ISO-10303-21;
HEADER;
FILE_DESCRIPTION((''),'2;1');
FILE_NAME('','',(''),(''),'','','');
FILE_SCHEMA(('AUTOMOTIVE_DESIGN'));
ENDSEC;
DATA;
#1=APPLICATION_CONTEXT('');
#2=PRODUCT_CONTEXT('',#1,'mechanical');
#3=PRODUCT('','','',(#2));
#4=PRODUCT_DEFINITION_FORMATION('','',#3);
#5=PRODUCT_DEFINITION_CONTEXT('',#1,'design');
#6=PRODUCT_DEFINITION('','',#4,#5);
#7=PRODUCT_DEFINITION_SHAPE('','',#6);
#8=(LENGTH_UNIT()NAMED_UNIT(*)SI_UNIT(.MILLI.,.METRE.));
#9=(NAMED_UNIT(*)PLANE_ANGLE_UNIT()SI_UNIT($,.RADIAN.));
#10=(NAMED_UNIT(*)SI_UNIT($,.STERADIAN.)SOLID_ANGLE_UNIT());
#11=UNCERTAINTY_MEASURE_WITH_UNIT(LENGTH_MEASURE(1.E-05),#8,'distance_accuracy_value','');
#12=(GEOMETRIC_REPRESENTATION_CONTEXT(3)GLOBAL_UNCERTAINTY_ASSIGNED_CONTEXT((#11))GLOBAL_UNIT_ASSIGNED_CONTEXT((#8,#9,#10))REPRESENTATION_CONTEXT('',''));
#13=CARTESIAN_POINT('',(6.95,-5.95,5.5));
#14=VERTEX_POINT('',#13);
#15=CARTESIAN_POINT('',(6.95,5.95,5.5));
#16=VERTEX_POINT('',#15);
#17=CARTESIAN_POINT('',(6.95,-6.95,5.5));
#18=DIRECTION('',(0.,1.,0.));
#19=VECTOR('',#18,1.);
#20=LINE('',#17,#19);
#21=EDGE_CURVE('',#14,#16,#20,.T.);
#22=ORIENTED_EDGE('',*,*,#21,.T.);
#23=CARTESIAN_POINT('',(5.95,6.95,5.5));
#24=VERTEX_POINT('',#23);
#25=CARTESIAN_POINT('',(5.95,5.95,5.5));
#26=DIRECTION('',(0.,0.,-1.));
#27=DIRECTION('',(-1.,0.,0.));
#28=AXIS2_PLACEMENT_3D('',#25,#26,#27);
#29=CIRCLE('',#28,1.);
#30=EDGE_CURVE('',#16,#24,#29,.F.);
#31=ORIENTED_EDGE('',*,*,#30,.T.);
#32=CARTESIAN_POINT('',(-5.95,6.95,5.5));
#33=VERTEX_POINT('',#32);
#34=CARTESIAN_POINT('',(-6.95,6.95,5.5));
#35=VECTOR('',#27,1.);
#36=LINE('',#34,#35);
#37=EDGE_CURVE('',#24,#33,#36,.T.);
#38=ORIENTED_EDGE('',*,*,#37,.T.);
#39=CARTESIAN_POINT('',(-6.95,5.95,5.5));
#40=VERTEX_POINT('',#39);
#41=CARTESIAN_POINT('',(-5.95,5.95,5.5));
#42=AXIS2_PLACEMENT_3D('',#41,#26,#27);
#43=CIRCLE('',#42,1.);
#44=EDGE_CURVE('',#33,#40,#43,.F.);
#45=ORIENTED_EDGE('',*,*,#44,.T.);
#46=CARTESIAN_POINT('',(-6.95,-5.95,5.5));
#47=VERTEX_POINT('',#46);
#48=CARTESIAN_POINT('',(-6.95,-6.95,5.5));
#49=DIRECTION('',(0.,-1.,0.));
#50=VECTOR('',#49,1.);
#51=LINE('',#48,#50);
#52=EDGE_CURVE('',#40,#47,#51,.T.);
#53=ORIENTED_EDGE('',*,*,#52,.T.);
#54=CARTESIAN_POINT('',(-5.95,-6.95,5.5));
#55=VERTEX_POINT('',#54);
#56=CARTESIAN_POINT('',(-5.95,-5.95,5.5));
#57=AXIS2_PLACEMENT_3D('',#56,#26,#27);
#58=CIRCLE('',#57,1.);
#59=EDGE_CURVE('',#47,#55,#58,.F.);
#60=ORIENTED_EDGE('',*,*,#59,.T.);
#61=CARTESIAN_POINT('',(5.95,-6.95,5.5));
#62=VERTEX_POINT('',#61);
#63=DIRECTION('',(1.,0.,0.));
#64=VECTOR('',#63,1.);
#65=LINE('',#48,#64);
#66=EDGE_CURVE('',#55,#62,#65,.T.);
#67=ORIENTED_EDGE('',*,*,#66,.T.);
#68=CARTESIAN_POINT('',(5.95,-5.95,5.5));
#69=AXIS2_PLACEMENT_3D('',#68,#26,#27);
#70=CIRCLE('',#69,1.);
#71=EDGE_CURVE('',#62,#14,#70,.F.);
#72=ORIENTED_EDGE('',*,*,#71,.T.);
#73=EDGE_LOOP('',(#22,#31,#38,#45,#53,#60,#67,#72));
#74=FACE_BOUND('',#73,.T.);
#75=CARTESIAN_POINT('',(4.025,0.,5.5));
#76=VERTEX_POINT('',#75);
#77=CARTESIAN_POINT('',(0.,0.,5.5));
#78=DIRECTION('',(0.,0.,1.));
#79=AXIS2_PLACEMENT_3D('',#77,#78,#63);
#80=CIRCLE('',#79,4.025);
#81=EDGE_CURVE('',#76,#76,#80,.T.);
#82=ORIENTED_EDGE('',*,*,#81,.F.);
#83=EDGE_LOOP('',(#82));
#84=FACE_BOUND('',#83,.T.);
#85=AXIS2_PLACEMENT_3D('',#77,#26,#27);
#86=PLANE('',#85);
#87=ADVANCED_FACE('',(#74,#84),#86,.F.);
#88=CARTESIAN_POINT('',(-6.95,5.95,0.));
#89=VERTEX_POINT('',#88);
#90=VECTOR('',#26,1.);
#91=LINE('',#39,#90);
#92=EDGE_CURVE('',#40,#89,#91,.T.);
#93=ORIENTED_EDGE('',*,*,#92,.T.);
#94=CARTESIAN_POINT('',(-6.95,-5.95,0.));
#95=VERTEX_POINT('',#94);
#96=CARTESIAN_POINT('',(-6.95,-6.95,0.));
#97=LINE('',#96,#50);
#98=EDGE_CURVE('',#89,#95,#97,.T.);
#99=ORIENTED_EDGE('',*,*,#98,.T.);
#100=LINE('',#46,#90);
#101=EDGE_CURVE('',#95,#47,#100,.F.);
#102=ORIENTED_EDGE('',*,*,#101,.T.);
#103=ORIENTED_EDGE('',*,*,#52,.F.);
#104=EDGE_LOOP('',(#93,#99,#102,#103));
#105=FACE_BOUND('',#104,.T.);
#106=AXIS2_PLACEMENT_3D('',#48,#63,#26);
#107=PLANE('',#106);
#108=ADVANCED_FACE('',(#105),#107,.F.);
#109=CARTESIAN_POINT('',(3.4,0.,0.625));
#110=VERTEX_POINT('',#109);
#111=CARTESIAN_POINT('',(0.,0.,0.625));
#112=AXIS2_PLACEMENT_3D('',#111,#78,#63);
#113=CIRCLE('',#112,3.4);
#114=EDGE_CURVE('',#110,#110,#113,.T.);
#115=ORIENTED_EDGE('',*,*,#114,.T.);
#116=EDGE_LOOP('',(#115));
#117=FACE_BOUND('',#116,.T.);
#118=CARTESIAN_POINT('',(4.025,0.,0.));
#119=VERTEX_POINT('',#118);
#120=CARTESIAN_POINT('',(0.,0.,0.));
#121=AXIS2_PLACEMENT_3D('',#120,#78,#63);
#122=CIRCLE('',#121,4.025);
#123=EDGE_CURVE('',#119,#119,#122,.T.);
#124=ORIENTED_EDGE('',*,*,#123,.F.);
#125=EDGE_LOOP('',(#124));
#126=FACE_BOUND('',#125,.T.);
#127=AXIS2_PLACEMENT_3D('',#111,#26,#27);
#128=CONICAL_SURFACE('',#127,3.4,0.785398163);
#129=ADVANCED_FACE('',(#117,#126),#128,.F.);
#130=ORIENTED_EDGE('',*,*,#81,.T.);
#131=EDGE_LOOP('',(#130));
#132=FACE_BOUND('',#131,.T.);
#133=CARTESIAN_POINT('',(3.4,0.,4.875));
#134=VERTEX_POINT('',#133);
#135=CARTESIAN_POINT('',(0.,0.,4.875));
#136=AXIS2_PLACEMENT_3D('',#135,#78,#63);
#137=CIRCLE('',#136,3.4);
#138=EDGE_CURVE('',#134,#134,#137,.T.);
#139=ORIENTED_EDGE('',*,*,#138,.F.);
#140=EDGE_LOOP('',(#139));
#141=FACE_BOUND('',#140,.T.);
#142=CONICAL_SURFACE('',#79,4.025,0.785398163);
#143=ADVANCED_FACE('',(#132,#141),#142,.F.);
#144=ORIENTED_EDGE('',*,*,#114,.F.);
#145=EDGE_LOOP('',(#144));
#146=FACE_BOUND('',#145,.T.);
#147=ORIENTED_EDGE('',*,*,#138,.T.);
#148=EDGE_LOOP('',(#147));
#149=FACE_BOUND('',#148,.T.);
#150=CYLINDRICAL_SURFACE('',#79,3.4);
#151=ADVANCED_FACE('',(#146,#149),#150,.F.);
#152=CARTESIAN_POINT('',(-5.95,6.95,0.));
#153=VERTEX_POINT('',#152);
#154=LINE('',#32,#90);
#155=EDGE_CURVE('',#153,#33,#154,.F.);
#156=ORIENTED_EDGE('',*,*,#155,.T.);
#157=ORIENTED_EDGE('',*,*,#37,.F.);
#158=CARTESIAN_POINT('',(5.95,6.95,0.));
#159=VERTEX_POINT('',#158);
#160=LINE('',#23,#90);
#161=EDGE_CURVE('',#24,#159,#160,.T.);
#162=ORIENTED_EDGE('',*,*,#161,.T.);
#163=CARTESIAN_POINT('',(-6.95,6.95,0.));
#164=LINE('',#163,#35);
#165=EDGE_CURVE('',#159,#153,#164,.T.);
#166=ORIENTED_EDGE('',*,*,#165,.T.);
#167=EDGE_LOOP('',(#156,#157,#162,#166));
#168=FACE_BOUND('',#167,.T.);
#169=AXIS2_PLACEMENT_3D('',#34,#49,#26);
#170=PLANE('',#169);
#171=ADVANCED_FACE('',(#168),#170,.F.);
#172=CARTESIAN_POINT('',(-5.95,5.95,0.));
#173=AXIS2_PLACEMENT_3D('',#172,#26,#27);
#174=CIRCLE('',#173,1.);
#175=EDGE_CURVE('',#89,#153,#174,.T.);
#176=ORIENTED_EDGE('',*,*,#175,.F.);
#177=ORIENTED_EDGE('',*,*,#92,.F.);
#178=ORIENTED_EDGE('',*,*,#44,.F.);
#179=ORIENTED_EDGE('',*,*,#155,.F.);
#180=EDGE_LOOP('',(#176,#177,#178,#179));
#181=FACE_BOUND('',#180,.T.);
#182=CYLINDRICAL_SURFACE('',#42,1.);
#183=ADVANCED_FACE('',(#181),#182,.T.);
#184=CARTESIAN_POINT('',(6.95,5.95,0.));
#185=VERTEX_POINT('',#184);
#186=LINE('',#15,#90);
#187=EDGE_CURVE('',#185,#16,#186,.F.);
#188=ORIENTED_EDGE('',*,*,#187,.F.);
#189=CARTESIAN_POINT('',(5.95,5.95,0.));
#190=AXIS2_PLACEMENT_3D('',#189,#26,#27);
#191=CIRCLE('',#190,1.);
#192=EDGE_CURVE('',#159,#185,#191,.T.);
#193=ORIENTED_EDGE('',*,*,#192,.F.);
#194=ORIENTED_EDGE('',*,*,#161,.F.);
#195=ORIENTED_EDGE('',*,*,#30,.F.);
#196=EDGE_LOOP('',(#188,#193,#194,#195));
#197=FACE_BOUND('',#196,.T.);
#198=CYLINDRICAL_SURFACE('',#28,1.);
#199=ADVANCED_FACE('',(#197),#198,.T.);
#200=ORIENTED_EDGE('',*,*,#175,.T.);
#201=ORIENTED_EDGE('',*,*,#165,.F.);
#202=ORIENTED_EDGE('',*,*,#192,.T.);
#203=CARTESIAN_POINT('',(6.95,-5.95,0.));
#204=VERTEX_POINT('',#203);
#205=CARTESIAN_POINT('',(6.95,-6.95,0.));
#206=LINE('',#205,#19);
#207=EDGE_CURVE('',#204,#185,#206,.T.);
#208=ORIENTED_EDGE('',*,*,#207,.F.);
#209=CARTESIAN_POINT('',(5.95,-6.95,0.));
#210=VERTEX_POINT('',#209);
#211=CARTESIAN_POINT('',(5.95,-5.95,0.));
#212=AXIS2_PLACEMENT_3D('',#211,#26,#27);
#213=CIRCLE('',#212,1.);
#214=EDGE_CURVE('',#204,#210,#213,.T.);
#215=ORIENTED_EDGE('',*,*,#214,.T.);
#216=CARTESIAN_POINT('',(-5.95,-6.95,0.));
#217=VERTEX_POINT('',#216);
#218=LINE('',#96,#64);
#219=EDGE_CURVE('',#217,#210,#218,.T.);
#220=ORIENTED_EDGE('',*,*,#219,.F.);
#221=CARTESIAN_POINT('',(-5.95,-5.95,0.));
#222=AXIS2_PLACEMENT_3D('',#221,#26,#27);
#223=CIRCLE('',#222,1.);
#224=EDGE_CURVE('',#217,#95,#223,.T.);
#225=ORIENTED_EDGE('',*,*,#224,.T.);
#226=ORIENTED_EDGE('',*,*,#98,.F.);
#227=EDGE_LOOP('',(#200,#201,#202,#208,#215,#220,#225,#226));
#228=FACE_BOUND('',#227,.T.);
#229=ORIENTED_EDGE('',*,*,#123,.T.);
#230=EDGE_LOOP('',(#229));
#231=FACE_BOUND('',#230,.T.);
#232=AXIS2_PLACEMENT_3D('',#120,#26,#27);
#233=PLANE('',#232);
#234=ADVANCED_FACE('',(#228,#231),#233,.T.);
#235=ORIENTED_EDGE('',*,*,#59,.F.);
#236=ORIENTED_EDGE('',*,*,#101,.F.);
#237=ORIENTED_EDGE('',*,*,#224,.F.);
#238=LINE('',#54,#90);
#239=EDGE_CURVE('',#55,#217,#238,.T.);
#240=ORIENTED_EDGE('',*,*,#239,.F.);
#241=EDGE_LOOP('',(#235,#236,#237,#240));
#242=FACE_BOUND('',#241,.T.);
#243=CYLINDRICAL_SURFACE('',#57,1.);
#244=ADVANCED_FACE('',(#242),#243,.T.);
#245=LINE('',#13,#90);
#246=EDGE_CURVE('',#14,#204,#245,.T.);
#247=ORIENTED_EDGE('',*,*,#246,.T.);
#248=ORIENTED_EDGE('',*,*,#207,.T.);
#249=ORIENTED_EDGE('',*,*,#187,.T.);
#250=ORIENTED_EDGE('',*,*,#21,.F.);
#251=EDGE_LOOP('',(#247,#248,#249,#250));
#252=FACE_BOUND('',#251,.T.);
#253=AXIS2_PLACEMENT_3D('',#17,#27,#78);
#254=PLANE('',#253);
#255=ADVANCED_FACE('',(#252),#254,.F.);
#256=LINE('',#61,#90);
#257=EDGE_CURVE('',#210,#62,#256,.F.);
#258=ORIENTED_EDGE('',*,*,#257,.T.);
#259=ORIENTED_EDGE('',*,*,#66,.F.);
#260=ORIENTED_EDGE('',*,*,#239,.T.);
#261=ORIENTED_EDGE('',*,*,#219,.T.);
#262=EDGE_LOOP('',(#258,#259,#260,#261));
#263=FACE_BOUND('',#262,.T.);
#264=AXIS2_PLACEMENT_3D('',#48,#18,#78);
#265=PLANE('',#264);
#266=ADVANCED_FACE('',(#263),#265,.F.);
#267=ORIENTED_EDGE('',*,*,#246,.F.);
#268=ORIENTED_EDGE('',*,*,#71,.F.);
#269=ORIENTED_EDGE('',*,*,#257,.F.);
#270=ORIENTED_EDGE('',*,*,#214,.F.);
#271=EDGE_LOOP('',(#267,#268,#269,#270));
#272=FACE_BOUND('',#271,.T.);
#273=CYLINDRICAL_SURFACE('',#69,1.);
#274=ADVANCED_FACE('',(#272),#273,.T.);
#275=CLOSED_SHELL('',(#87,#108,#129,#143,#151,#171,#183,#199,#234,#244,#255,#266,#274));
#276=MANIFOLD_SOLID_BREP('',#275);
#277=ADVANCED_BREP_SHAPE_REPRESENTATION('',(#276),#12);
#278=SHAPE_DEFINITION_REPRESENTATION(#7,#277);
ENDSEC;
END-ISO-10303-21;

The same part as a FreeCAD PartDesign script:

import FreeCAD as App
import Part
import Sketcher

V = App.Vector


def edges_at(feature, points):
    """Names of the edges that pass closest to the given points."""
    edges = feature.Shape.Edges
    near = lambda p: min(range(len(edges)), key=lambda i: edges[i].distToShape(Part.Vertex(*p))[0])
    return sorted({f"Edge{near(p) + 1}" for p in points})

doc = App.newDocument("Part")
params = doc.addObject("Spreadsheet::Sheet", "Params")
for row, (alias, value) in enumerate([
    ("sketch1_width", "13.9 mm"),
    ("pad1_length", "5.5 mm"),
    ("sketch2_height", "5.5 mm"),
    ("sketch2_height2", "4.25 mm"),
    ("groove_angle", "360 deg"),
    ("fillet_radius", "1 mm"),
], start=1):
    params.set(f"A{row}", alias)
    params.set(f"B{row}", "=" + value)
    params.setAlias(f"B{row}", alias)

body = doc.addObject("PartDesign::Body", "Body")

# Sketch on XY plane
sketch1 = doc.addObject("Sketcher::SketchObject", "Sketch")
body.addObject(sketch1)
sketch1.AttachmentSupport = (doc.XY_Plane, [""])
sketch1.MapMode = "FlatFace"
sketch1.addGeometry(Part.LineSegment(V(-7, 7, 0), V(-7, -7, 0)), False)
sketch1.addGeometry(Part.LineSegment(V(-7, -7, 0), V(7, -7, 0)), False)
sketch1.addGeometry(Part.LineSegment(V(7, -7, 0), V(7, 7, 0)), False)
sketch1.addGeometry(Part.LineSegment(V(7, 7, 0), V(-7, 7, 0)), False)
sketch1.addConstraint(Sketcher.Constraint("Coincident", 0, 2, 1, 1))
sketch1.addConstraint(Sketcher.Constraint("Coincident", 1, 2, 2, 1))
sketch1.addConstraint(Sketcher.Constraint("Coincident", 2, 2, 3, 1))
sketch1.addConstraint(Sketcher.Constraint("Coincident", 3, 2, 0, 1))
sketch1.addConstraint(Sketcher.Constraint("Vertical", 0))
sketch1.addConstraint(Sketcher.Constraint("Horizontal", 1))
sketch1.addConstraint(Sketcher.Constraint("Vertical", 2))
sketch1.addConstraint(Sketcher.Constraint("Horizontal", 3))
sketch1.addConstraint(Sketcher.Constraint("Symmetric", 0, 2, 2, 2, -1, 1))
sketch1.addConstraint(Sketcher.Constraint("Equal", 3, 0))
sketch1.addConstraint(Sketcher.Constraint("DistanceX", 1, 1, 1, 2, 13.9))
sketch1.setExpression("Constraints[10]", "Params.sketch1_width")
pad1 = doc.addObject("PartDesign::Pad", "Pad")
body.addObject(pad1)
pad1.Profile = sketch1
pad1.setExpression("Length", "Params.pad1_length")

# Sketch on YZ plane
sketch2 = doc.addObject("Sketcher::SketchObject", "Sketch001")
body.addObject(sketch2)
sketch2.AttachmentSupport = (doc.YZ_Plane, [""])
sketch2.MapMode = "FlatFace"
sketch2.addGeometry(Part.LineSegment(V(0, 0, 0), V(0, 5.5, 0)), False)
sketch2.addGeometry(Part.LineSegment(V(0, 5.5, 0), V(-4, 5.5, 0)), False)
sketch2.addGeometry(Part.LineSegment(V(-4, 5.5, 0), V(-3.4, 4.9, 0)), False)
sketch2.addGeometry(Part.LineSegment(V(-3.4, 4.9, 0), V(-3.4, 0.6, 0)), False)
sketch2.addGeometry(Part.LineSegment(V(-3.4, 0.6, 0), V(-4, 0, 0)), False)
sketch2.addGeometry(Part.LineSegment(V(-4, 0, 0), V(0, 0, 0)), False)
sketch2.addConstraint(Sketcher.Constraint("Coincident", 0, 2, 1, 1))
sketch2.addConstraint(Sketcher.Constraint("Coincident", 1, 2, 2, 1))
sketch2.addConstraint(Sketcher.Constraint("Coincident", 2, 2, 3, 1))
sketch2.addConstraint(Sketcher.Constraint("Coincident", 3, 2, 4, 1))
sketch2.addConstraint(Sketcher.Constraint("Coincident", 4, 2, 5, 1))
sketch2.addConstraint(Sketcher.Constraint("Coincident", 5, 2, 0, 1))
sketch2.addConstraint(Sketcher.Constraint("Vertical", 0))
sketch2.addConstraint(Sketcher.Constraint("Horizontal", 1))
sketch2.addConstraint(Sketcher.Constraint("Vertical", 3))
sketch2.addConstraint(Sketcher.Constraint("Horizontal", 5))
sketch2.addConstraint(Sketcher.Constraint("Coincident", 5, 2, -1, 1))
sketch2.addConstraint(Sketcher.Constraint("Perpendicular", 2, 4))
sketch2.addConstraint(Sketcher.Constraint("Vertical", 1, 2, 4, 2))
sketch2.addConstraint(Sketcher.Constraint("Equal", 2, 4))
sketch2.addConstraint(Sketcher.Constraint("DistanceY", 0, 1, 0, 2, 5.5))
sketch2.addConstraint(Sketcher.Constraint("DistanceY", 3, 2, 3, 1, 4.25))
sketch2.addConstraint(Sketcher.Constraint("DistanceX", 2, 2, -1, 1, 3.4))
sketch2.setExpression("Constraints[14]", "Params.sketch2_height")
sketch2.setExpression("Constraints[15]", "Params.sketch2_height2")
groove = doc.addObject("PartDesign::Groove", "Groove")
body.addObject(groove)
groove.Profile = sketch2
groove.ReferenceAxis = (sketch2, ["V_Axis"])
groove.setExpression("Angle", "Params.groove_angle")
doc.recompute()

fillet = doc.addObject("PartDesign::Fillet", "Fillet")
body.addObject(fillet)
fillet.Base = (groove, edges_at(groove, [
    (6.95, -6.95, 2.75),
    (-6.95, -6.95, 2.75),
    (-6.95, 6.95, 2.75),
    (6.95, 6.95, 2.75),
]))
fillet.setExpression("Radius", "Params.fillet_radius")

doc.recompute()
